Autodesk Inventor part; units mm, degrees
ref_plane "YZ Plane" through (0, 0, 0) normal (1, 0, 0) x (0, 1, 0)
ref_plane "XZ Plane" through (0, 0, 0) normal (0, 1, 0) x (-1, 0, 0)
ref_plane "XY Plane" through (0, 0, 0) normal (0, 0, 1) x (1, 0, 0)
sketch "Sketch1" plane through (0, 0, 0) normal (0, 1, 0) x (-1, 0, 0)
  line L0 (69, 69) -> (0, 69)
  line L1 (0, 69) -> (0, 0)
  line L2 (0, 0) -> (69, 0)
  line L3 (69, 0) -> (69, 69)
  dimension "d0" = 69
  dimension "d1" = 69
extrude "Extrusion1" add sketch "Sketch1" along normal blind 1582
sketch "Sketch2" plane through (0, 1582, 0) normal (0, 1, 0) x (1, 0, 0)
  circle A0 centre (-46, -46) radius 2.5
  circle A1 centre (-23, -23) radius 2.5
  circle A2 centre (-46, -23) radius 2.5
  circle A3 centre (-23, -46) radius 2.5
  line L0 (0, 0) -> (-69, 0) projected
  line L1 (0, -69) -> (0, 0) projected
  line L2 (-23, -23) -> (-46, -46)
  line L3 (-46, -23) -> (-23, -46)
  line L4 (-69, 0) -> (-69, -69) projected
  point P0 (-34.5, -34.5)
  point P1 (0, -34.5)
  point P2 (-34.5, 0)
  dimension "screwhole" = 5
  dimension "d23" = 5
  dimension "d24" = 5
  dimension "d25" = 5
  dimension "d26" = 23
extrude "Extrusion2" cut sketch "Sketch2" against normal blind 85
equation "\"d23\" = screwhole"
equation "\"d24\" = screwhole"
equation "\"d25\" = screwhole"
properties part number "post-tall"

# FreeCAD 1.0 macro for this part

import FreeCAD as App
import Part
import Sketcher

doc = App.newDocument("Part")
body = doc.addObject("PartDesign::Body", "Body")

# Sketch on XZ plane
sketch1 = body.newObject("Sketcher::SketchObject", "Sketch")
sketch1.AttachmentSupport = (doc.getObject("XZ_Plane"), [""])
sketch1.MapMode = "FlatFace"
sketch1.addGeometry(Part.LineSegment(App.Vector(-69, 0, 0), App.Vector(-69, 69, 0)), False)
sketch1.addGeometry(Part.LineSegment(App.Vector(-69, 69, 0), App.Vector(0, 69, 0)), False)
sketch1.addGeometry(Part.LineSegment(App.Vector(0, 69, 0), App.Vector(0, 0, 0)), False)
sketch1.addGeometry(Part.LineSegment(App.Vector(0, 0, 0), App.Vector(-69, 0, 0)), False)
sketch1.addConstraint(Sketcher.Constraint("Coincident", 0, 2, 1, 1))
sketch1.addConstraint(Sketcher.Constraint("Coincident", 1, 2, 2, 1))
sketch1.addConstraint(Sketcher.Constraint("Coincident", 2, 2, 3, 1))
sketch1.addConstraint(Sketcher.Constraint("Coincident", 3, 2, 0, 1))
sketch1.addConstraint(Sketcher.Constraint("Vertical", 0))
sketch1.addConstraint(Sketcher.Constraint("Horizontal", 1))
sketch1.addConstraint(Sketcher.Constraint("Vertical", 2))
sketch1.addConstraint(Sketcher.Constraint("Horizontal", 3))
sketch1.addConstraint(Sketcher.Constraint("Coincident", 2, 2, -1, 1))
sketch1.addConstraint(Sketcher.Constraint("Equal", 3, 0))
sketch1.addConstraint(Sketcher.Constraint("DistanceX", 1, 1, 1, 2, 69.0))
pad1 = body.newObject("PartDesign::Pad", "Pad")
pad1.Profile = sketch1
pad1.Length = 1582
pad1.Reversed = True

# Sketch on XZ plane
sketch2 = body.newObject("Sketcher::SketchObject", "Sketch001")
sketch2.AttachmentSupport = (doc.getObject("XZ_Plane"), [""])
sketch2.MapMode = "FlatFace"
sketch2.AttachmentOffset = App.Placement(App.Vector(0, 0, -1582), App.Rotation())
sketch2.addGeometry(Part.Circle(App.Vector(-46, 46, 0), App.Vector(0, 0, 1), 2.5), False)
sketch2.addGeometry(Part.Circle(App.Vector(-46, 23, 0), App.Vector(0, 0, 1), 2.5), False)
sketch2.addGeometry(Part.Circle(App.Vector(-23, 23, 0), App.Vector(0, 0, 1), 2.5), False)
sketch2.addGeometry(Part.Circle(App.Vector(-23, 46, 0), App.Vector(0, 0, 1), 2.5), False)
sketch2.addConstraint(Sketcher.Constraint("Equal", 0, 1))
sketch2.addConstraint(Sketcher.Constraint("Equal", 1, 2))
sketch2.addConstraint(Sketcher.Constraint("Equal", 2, 3))
sketch2.addConstraint(Sketcher.Constraint("Horizontal", 1, 3, 2, 3))
sketch2.addConstraint(Sketcher.Constraint("Horizontal", 0, 3, 3, 3))
sketch2.addConstraint(Sketcher.Constraint("Vertical", 0, 3, 1, 3))
sketch2.addConstraint(Sketcher.Constraint("Vertical", 2, 3, 3, 3))
sketch2.addConstraint(Sketcher.Constraint("Diameter", 0, 5.0))
sketch2.addConstraint(Sketcher.Constraint("DistanceY", -1, 1, 1, 3, 23.0))
sketch2.addConstraint(Sketcher.Constraint("DistanceX", 2, 3, -1, 1, 23.0))
sketch2.addConstraint(Sketcher.Constraint("DistanceY", 1, 3, 0, 3, 23.0))
sketch2.addConstraint(Sketcher.Constraint("DistanceX", 1, 3, 2, 3, 23.0))
pocket1 = body.newObject("PartDesign::Pocket", "Pocket")
pocket1.Profile = sketch2
pocket1.Length = 85
pocket1.Reversed = True

doc.recompute()
